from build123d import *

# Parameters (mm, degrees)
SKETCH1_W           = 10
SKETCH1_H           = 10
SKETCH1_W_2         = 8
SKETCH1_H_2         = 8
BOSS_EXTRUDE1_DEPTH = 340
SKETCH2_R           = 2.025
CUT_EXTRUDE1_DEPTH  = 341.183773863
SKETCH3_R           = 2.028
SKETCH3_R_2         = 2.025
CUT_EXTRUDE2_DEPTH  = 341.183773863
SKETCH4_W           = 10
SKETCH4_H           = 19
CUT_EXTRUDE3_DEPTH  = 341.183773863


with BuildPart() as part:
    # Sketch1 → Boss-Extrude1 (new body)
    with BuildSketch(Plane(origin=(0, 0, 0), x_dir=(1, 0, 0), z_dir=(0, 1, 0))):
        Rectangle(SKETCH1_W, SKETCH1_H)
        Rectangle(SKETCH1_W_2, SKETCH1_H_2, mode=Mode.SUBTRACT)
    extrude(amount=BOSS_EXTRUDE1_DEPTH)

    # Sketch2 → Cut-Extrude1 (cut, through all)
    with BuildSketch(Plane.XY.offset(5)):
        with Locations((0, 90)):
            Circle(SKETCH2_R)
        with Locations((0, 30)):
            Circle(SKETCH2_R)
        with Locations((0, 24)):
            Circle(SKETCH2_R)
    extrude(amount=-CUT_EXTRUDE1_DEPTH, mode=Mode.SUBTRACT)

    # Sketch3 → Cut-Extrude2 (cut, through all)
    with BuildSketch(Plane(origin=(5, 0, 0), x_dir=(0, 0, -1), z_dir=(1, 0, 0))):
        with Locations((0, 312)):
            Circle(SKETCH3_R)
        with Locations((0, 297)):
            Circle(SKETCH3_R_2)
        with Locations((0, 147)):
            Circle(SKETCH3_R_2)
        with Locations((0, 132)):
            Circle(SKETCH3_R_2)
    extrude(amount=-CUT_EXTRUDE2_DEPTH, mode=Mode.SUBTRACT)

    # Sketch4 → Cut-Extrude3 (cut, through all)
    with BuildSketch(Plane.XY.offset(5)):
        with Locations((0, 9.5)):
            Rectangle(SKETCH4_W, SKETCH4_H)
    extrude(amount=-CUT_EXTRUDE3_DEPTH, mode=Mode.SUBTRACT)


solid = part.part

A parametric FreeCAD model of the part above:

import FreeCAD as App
import Part
import Sketcher

doc = App.newDocument("Part")
body = doc.addObject("PartDesign::Body", "Body")

# Sketch on XZ plane
sketch1 = body.newObject("Sketcher::SketchObject", "Sketch")
sketch1.AttachmentSupport = (doc.getObject("XZ_Plane"), [""])
sketch1.MapMode = "FlatFace"
sketch1.addGeometry(Part.LineSegment(App.Vector(-5, -5, 0), App.Vector(-5, 5, 0)), False)
sketch1.addGeometry(Part.LineSegment(App.Vector(-5, 5, 0), App.Vector(5, 5, 0)), False)
sketch1.addGeometry(Part.LineSegment(App.Vector(5, 5, 0), App.Vector(5, -5, 0)), False)
sketch1.addGeometry(Part.LineSegment(App.Vector(5, -5, 0), App.Vector(-5, -5, 0)), False)
sketch1.addGeometry(Part.LineSegment(App.Vector(4, 4, 0), App.Vector(-4, 4, 0)), False)
sketch1.addGeometry(Part.LineSegment(App.Vector(-4, 4, 0), App.Vector(-4, -4, 0)), False)
sketch1.addGeometry(Part.LineSegment(App.Vector(-4, -4, 0), App.Vector(4, -4, 0)), False)
sketch1.addGeometry(Part.LineSegment(App.Vector(4, -4, 0), App.Vector(4, 4, 0)), False)
sketch1.addConstraint(Sketcher.Constraint("Coincident", 0, 2, 1, 1))
sketch1.addConstraint(Sketcher.Constraint("Coincident", 1, 2, 2, 1))
sketch1.addConstraint(Sketcher.Constraint("Coincident", 2, 2, 3, 1))
sketch1.addConstraint(Sketcher.Constraint("Coincident", 3, 2, 0, 1))
sketch1.addConstraint(Sketcher.Constraint("Coincident", 4, 2, 5, 1))
sketch1.addConstraint(Sketcher.Constraint("Coincident", 5, 2, 6, 1))
sketch1.addConstraint(Sketcher.Constraint("Coincident", 6, 2, 7, 1))
sketch1.addConstraint(Sketcher.Constraint("Coincident", 7, 2, 4, 1))
sketch1.addConstraint(Sketcher.Constraint("Vertical", 0))
sketch1.addConstraint(Sketcher.Constraint("Horizontal", 1))
sketch1.addConstraint(Sketcher.Constraint("Vertical", 2))
sketch1.addConstraint(Sketcher.Constraint("Horizontal", 3))
sketch1.addConstraint(Sketcher.Constraint("Horizontal", 4))
sketch1.addConstraint(Sketcher.Constraint("Vertical", 5))
sketch1.addConstraint(Sketcher.Constraint("Horizontal", 6))
sketch1.addConstraint(Sketcher.Constraint("Vertical", 7))
sketch1.addConstraint(Sketcher.Constraint("Symmetric", 0, 2, 2, 2, -1, 1))
sketch1.addConstraint(Sketcher.Constraint("Symmetric", 4, 2, 6, 2, -1, 1))
sketch1.addConstraint(Sketcher.Constraint("Equal", 3, 0))
sketch1.addConstraint(Sketcher.Constraint("Equal", 6, 5))
sketch1.addConstraint(Sketcher.Constraint("DistanceX", 1, 1, 1, 2, 10.0))
sketch1.addConstraint(Sketcher.Constraint("DistanceX", 4, 2, 4, 1, 8.0))
pad1 = body.newObject("PartDesign::Pad", "Pad")
pad1.Profile = sketch1
pad1.Length = 340
pad1.Reversed = True

# Sketch on XY plane
sketch2 = body.newObject("Sketcher::SketchObject", "Sketch001")
sketch2.AttachmentSupport = (doc.getObject("XY_Plane"), [""])
sketch2.MapMode = "FlatFace"
sketch2.AttachmentOffset = App.Placement(App.Vector(0, 0, 5), App.Rotation())
sketch2.addGeometry(Part.Circle(App.Vector(0, 90, 0), App.Vector(0, 0, 1), 2), False)
sketch2.addGeometry(Part.Circle(App.Vector(0, 30, 0), App.Vector(0, 0, 1), 2), False)
sketch2.addGeometry(Part.Circle(App.Vector(0, 24, 0), App.Vector(0, 0, 1), 2), False)
sketch2.addConstraint(Sketcher.Constraint("Equal", 0, 1))
sketch2.addConstraint(Sketcher.Constraint("Equal", 1, 2))
sketch2.addConstraint(Sketcher.Constraint("PointOnObject", 0, 3, -2))
sketch2.addConstraint(Sketcher.Constraint("PointOnObject", 1, 3, -2))
sketch2.addConstraint(Sketcher.Constraint("PointOnObject", 2, 3, -2))
sketch2.addConstraint(Sketcher.Constraint("Diameter", 0, 4.05))
sketch2.addConstraint(Sketcher.Constraint("DistanceY", -1, 1, 0, 3, 90.0))
sketch2.addConstraint(Sketcher.Constraint("DistanceY", -1, 1, 1, 3, 30.0))
sketch2.addConstraint(Sketcher.Constraint("DistanceY", -1, 1, 2, 3, 24.0))
pocket1 = body.newObject("PartDesign::Pocket", "Pocket")
pocket1.Profile = sketch2
pocket1.Type = "ThroughAll"

# Sketch on YZ plane
sketch3 = body.newObject("Sketcher::SketchObject", "Sketch002")
sketch3.AttachmentSupport = (doc.getObject("YZ_Plane"), [""])
sketch3.MapMode = "FlatFace"
sketch3.AttachmentOffset = App.Placement(App.Vector(0, 0, 5), App.Rotation())
sketch3.addGeometry(Part.Circle(App.Vector(312, 0, 0), App.Vector(0, 0, 1), 2), False)
sketch3.addGeometry(Part.Circle(App.Vector(297, 0, 0), App.Vector(0, 0, 1), 2), False)
sketch3.addGeometry(Part.Circle(App.Vector(147, 0, 0), App.Vector(0, 0, 1), 2), False)
sketch3.addGeometry(Part.Circle(App.Vector(132, 0, 0), App.Vector(0, 0, 1), 2), False)
sketch3.addConstraint(Sketcher.Constraint("Equal", 1, 2))
sketch3.addConstraint(Sketcher.Constraint("Equal", 2, 3))
sketch3.addConstraint(Sketcher.Constraint("PointOnObject", 0, 3, -1))
sketch3.addConstraint(Sketcher.Constraint("PointOnObject", 1, 3, -1))
sketch3.addConstraint(Sketcher.Constraint("PointOnObject", 2, 3, -1))
sketch3.addConstraint(Sketcher.Constraint("PointOnObject", 3, 3, -1))
sketch3.addConstraint(Sketcher.Constraint("Diameter", 1, 4.05))
sketch3.addConstraint(Sketcher.Constraint("Diameter", 0, 4.056))
sketch3.addConstraint(Sketcher.Constraint("DistanceX", -1, 1, 0, 3, 312.0))
sketch3.addConstraint(Sketcher.Constraint("DistanceX", -1, 1, 1, 3, 297.0))
sketch3.addConstraint(Sketcher.Constraint("DistanceX", -1, 1, 2, 3, 147.0))
sketch3.addConstraint(Sketcher.Constraint("DistanceX", -1, 1, 3, 3, 132.0))
pocket2 = body.newObject("PartDesign::Pocket", "Pocket001")
pocket2.Profile = sketch3
pocket2.Type = "ThroughAll"

# Sketch on XY plane
sketch4 = body.newObject("Sketcher::SketchObject", "Sketch003")
sketch4.AttachmentSupport = (doc.getObject("XY_Plane"), [""])
sketch4.MapMode = "FlatFace"
sketch4.AttachmentOffset = App.Placement(App.Vector(0, 0, 5), App.Rotation())
sketch4.addGeometry(Part.LineSegment(App.Vector(-5, 19, 0), App.Vector(-5, 0, 0)), False)
sketch4.addGeometry(Part.LineSegment(App.Vector(-5, 0, 0), App.Vector(5, 0, 0)), False)
sketch4.addGeometry(Part.LineSegment(App.Vector(5, 0, 0), App.Vector(5, 19, 0)), False)
sketch4.addGeometry(Part.LineSegment(App.Vector(5, 19, 0), App.Vector(-5, 19, 0)), False)
sketch4.addConstraint(Sketcher.Constraint("Coincident", 0, 2, 1, 1))
sketch4.addConstraint(Sketcher.Constraint("Coincident", 1, 2, 2, 1))
sketch4.addConstraint(Sketcher.Constraint("Coincident", 2, 2, 3, 1))
sketch4.addConstraint(Sketcher.Constraint("Coincident", 3, 2, 0, 1))
sketch4.addConstraint(Sketcher.Constraint("Vertical", 0))
sketch4.addConstraint(Sketcher.Constraint("Horizontal", 1))
sketch4.addConstraint(Sketcher.Constraint("Vertical", 2))
sketch4.addConstraint(Sketcher.Constraint("Horizontal", 3))
sketch4.addConstraint(Sketcher.Constraint("Symmetric", 0, 2, 1, 2, -1, 1))
sketch4.addConstraint(Sketcher.Constraint("DistanceX", 1, 1, 1, 2, 10.0))
sketch4.addConstraint(Sketcher.Constraint("DistanceY", 0, 2, 0, 1, 19.0))
pocket3 = body.newObject("PartDesign::Pocket", "Pocket002")
pocket3.Profile = sketch4
pocket3.Type = "ThroughAll"

doc.recompute()
